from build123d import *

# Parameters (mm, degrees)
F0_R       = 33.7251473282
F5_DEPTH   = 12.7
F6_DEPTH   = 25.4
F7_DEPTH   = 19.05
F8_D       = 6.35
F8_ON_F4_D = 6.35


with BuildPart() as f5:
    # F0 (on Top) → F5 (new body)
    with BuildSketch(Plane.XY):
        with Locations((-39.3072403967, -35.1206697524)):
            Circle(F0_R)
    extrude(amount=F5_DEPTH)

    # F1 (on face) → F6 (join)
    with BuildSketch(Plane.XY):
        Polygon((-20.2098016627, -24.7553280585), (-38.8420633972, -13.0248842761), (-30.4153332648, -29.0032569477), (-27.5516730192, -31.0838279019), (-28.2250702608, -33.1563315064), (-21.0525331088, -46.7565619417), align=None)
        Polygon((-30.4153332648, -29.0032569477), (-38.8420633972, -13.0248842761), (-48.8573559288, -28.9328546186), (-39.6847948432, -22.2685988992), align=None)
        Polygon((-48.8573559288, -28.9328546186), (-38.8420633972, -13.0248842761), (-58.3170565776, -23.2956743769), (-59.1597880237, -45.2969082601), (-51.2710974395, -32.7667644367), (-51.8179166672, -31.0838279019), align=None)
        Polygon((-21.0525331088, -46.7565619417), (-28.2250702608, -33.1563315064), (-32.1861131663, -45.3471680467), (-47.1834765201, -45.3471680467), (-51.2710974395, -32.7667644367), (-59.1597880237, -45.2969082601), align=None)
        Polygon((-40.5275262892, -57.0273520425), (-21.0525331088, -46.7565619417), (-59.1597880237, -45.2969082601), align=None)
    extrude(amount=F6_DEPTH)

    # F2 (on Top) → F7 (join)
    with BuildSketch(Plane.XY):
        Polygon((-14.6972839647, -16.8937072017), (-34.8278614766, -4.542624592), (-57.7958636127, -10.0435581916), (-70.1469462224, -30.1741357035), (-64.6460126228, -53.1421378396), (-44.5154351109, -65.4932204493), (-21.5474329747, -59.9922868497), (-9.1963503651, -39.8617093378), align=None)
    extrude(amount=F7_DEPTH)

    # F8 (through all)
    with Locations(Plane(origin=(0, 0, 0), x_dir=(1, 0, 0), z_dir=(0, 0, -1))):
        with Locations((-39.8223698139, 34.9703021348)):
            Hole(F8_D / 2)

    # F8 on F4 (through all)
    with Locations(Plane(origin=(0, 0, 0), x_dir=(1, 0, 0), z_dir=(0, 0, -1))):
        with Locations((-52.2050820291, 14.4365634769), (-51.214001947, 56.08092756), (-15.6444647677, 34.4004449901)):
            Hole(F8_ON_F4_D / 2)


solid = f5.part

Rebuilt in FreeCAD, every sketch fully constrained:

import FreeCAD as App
import Part
import Sketcher
Q = App.Units.Quantity


def add_polygon(sketch, points):
    """Adds a closed chain of lines whose ends are joined by coincident constraints."""
    first, n = sketch.GeometryCount, len(points)
    for a, b in zip(points, points[1:] + points[:1]):
        sketch.addGeometry(Part.LineSegment(App.Vector(*a, 0), App.Vector(*b, 0)), False)
    for i in range(n):
        sketch.addConstraint(Sketcher.Constraint("Coincident", first + i, 2, first + (i + 1) % n, 1))

doc = App.newDocument("Part")
body = doc.addObject("PartDesign::Body", "Body")

# Sketch on XY plane
sketch1 = body.newObject("Sketcher::SketchObject", "Sketch")
sketch1.AttachmentSupport = (doc.getObject("XY_Plane"), [""])
sketch1.MapMode = "FlatFace"
sketch1.addGeometry(Part.Circle(App.Vector(-39, -35, 0), App.Vector(0, 0, 1), 34), False)
sketch1.addConstraint(Sketcher.Constraint("Diameter", 0, 67.450295))
sketch1.addConstraint(Sketcher.Constraint("DistanceX", 0, 3, -1, 1, 39.30724))
sketch1.addConstraint(Sketcher.Constraint("DistanceY", 0, 3, -1, 1, 35.12067))
pad1 = body.newObject("PartDesign::Pad", "Pad")
pad1.Profile = sketch1
pad1.Length = Q("0.5 in")

# Sketch on XY plane
sketch2 = body.newObject("Sketcher::SketchObject", "Sketch001")
sketch2.AttachmentSupport = (doc.getObject("XY_Plane"), [""])
sketch2.MapMode = "FlatFace"
add_polygon(sketch2, [(-20.2, -24.8), (-38.8, -13), (-58.3, -23.3), (-59.2, -45.3), (-40.5, -57), (-21.1, -46.8)])  # lines 0-5
add_polygon(sketch2, [(-51.3, -32.8), (-51.8, -31.1), (-48.9, -28.9), (-39.7, -22.3), (-30.4, -29), (-27.6, -31.1), (-28.2, -33.2), (-32.2, -45.3), (-47.2, -45.3)])  # lines 6-14
sketch2.addConstraint(Sketcher.Constraint("Horizontal", 13))
sketch2.addConstraint(Sketcher.Constraint("Parallel", 0, 3))
sketch2.addConstraint(Sketcher.Constraint("Parallel", 1, 4))
sketch2.addConstraint(Sketcher.Constraint("Parallel", 2, 5))
sketch2.addConstraint(Sketcher.Constraint("Parallel", 7, 8))
sketch2.addConstraint(Sketcher.Constraint("Parallel", 9, 10))
sketch2.addConstraint(Sketcher.Constraint("Parallel", 11, 12))
sketch2.addConstraint(Sketcher.Constraint("Parallel", 6, 14))
sketch2.addConstraint(Sketcher.Constraint("Horizontal", 6, 2, 10, 2))
sketch2.addConstraint(Sketcher.Constraint("Equal", 0, 1))
sketch2.addConstraint(Sketcher.Constraint("Equal", 1, 2))
sketch2.addConstraint(Sketcher.Constraint("Equal", 2, 3))
sketch2.addConstraint(Sketcher.Constraint("Angle", 6, Q("108 deg")))
sketch2.addConstraint(Sketcher.Constraint("Angle", 7, Q("36 deg")))
sketch2.addConstraint(Sketcher.Constraint("Angle", 9, Q("-36 deg")))
sketch2.addConstraint(Sketcher.Constraint("Angle", 11, Q("-108 deg")))
sketch2.addConstraint(Sketcher.Constraint("DistanceX", 1, 2, 14, 2, Q("0.2774 in")))
sketch2.addConstraint(Sketcher.Constraint("DistanceX", 5, 2, -1, 1, 20.209802))
sketch2.addConstraint(Sketcher.Constraint("DistanceY", 8, 2, -1, 1, 22.268599))
sketch2.addConstraint(Sketcher.Constraint("DistanceY", 6, 2, 5, 2, 6.3285))
sketch2.addConstraint(Sketcher.Constraint("DistanceX", 1, 2, 7, 2, 9.459701))
sketch2.addConstraint(Sketcher.Constraint("DistanceX", 9, 2, 4, 2, 9.3628))
sketch2.addConstraint(Sketcher.Constraint("Distance", 8, 11.337909))
sketch2.addConstraint(Sketcher.Constraint("Distance", 10, 3.539679))
sketch2.addConstraint(Sketcher.Constraint("Distance", 11, 2.179159))
sketch2.addConstraint(Sketcher.Constraint("Distance", 14, 13.227819))
sketch2.addConstraint(Sketcher.Constraint("DistanceX", 2, 2, -1, 1, 59.159788))
sketch2.addConstraint(Sketcher.Constraint("DistanceY", 2, 2, -1, 1, 45.296908))
sketch2.addConstraint(Sketcher.Constraint("DistanceY", 4, 2, -1, 1, 46.756562))
sketch2.addConstraint(Sketcher.Constraint("DistanceY", 5, 2, -1, 1, 24.755328))
pad2 = body.newObject("PartDesign::Pad", "Pad001")
pad2.Profile = sketch2
pad2.Length = Q("1 in")

# Sketch on XY plane
sketch3 = body.newObject("Sketcher::SketchObject", "Sketch002")
sketch3.AttachmentSupport = (doc.getObject("XY_Plane"), [""])
sketch3.MapMode = "FlatFace"
add_polygon(sketch3, [(-15, -17), (-35, -5), (-58, -10), (-70, -30), (-65, -53), (-45, -65), (-22, -60), (-9, -40)])  # lines 0-7
sketch3.addConstraint(Sketcher.Constraint("Perpendicular", 0, 2))
sketch3.addConstraint(Sketcher.Constraint("Perpendicular", 1, 3))
sketch3.addConstraint(Sketcher.Constraint("Perpendicular", 2, 4))
sketch3.addConstraint(Sketcher.Constraint("Perpendicular", 3, 5))
sketch3.addConstraint(Sketcher.Constraint("Perpendicular", 4, 6))
sketch3.addConstraint(Sketcher.Constraint("Perpendicular", 5, 7))
sketch3.addConstraint(Sketcher.Constraint("Equal", 0, 1))
sketch3.addConstraint(Sketcher.Constraint("Equal", 1, 2))
sketch3.addConstraint(Sketcher.Constraint("Equal", 2, 3))
sketch3.addConstraint(Sketcher.Constraint("Equal", 3, 4))
sketch3.addConstraint(Sketcher.Constraint("Equal", 4, 5))
sketch3.addConstraint(Sketcher.Constraint("DistanceX", 0, 2, -1, 1, 34.827861))
sketch3.addConstraint(Sketcher.Constraint("DistanceY", 1, 2, -1, 1, 10.043558))
sketch3.addConstraint(Sketcher.Constraint("DistanceY", 4, 2, -1, 1, 65.49322))
sketch3.addConstraint(Sketcher.Constraint("DistanceX", 6, 2, -1, 1, 9.19635))
sketch3.addConstraint(Sketcher.Constraint("DistanceX", 3, 2, 1, 2, 6.850149))
pad3 = body.newObject("PartDesign::Pad", "Pad002")
pad3.Profile = sketch3
pad3.Length = Q("0.75 in")

# Sketch on XY plane
sketch4 = body.newObject("Sketcher::SketchObject", "Sketch003")
sketch4.AttachmentSupport = (doc.getObject("XY_Plane"), [""])
sketch4.MapMode = "FlatFace"
sketch4.addGeometry(Part.Circle(App.Vector(-39.8, -35, 0), App.Vector(0, 0, 1), 3.2), False)
sketch4.addConstraint(Sketcher.Constraint("Diameter", 0, Q("0.25 in")))
sketch4.addConstraint(Sketcher.Constraint("DistanceX", 0, 3, -1, 1, 39.82237))
sketch4.addConstraint(Sketcher.Constraint("DistanceY", 0, 3, -1, 1, 34.970302))
doc.recompute()
hole = body.newObject("PartDesign::Hole", "Hole")
hole.Profile = sketch4
hole.ThreadType = "None"
hole.Diameter = Q("0.25 in")
hole.DepthType = "ThroughAll"
hole.Reversed = True

# Sketch on XY plane
sketch5 = body.newObject("Sketcher::SketchObject", "Sketch004")
sketch5.AttachmentSupport = (doc.getObject("XY_Plane"), [""])
sketch5.MapMode = "FlatFace"
sketch5.addGeometry(Part.Circle(App.Vector(-52.2, -14.4, 0), App.Vector(0, 0, 1), 3.2), False)
sketch5.addGeometry(Part.Circle(App.Vector(-51.2, -56.1, 0), App.Vector(0, 0, 1), 3.2), False)
sketch5.addGeometry(Part.Circle(App.Vector(-15.6, -34.4, 0), App.Vector(0, 0, 1), 3.2), False)
sketch5.addConstraint(Sketcher.Constraint("Equal", 0, 1))
sketch5.addConstraint(Sketcher.Constraint("Equal", 1, 2))
sketch5.addConstraint(Sketcher.Constraint("Diameter", 0, Q("0.25 in")))
sketch5.addConstraint(Sketcher.Constraint("DistanceX", 1, 3, -1, 1, 51.214002))
sketch5.addConstraint(Sketcher.Constraint("DistanceX", 0, 3, 1, 3, 0.99108))
sketch5.addConstraint(Sketcher.Constraint("DistanceY", 2, 3, 0, 3, 19.963882))
sketch5.addConstraint(Sketcher.Constraint("DistanceY", 0, 3, -1, 1, 14.436563))
sketch5.addConstraint(Sketcher.Constraint("DistanceY", 1, 3, -1, 1, 56.080928))
sketch5.addConstraint(Sketcher.Constraint("DistanceX", 2, 3, -1, 1, 15.644465))
doc.recompute()
hole2 = body.newObject("PartDesign::Hole", "Hole001")
hole2.Profile = sketch5
hole2.ThreadType = "None"
hole2.Diameter = Q("0.25 in")
hole2.DepthType = "ThroughAll"
hole2.Reversed = True

doc.recompute()
